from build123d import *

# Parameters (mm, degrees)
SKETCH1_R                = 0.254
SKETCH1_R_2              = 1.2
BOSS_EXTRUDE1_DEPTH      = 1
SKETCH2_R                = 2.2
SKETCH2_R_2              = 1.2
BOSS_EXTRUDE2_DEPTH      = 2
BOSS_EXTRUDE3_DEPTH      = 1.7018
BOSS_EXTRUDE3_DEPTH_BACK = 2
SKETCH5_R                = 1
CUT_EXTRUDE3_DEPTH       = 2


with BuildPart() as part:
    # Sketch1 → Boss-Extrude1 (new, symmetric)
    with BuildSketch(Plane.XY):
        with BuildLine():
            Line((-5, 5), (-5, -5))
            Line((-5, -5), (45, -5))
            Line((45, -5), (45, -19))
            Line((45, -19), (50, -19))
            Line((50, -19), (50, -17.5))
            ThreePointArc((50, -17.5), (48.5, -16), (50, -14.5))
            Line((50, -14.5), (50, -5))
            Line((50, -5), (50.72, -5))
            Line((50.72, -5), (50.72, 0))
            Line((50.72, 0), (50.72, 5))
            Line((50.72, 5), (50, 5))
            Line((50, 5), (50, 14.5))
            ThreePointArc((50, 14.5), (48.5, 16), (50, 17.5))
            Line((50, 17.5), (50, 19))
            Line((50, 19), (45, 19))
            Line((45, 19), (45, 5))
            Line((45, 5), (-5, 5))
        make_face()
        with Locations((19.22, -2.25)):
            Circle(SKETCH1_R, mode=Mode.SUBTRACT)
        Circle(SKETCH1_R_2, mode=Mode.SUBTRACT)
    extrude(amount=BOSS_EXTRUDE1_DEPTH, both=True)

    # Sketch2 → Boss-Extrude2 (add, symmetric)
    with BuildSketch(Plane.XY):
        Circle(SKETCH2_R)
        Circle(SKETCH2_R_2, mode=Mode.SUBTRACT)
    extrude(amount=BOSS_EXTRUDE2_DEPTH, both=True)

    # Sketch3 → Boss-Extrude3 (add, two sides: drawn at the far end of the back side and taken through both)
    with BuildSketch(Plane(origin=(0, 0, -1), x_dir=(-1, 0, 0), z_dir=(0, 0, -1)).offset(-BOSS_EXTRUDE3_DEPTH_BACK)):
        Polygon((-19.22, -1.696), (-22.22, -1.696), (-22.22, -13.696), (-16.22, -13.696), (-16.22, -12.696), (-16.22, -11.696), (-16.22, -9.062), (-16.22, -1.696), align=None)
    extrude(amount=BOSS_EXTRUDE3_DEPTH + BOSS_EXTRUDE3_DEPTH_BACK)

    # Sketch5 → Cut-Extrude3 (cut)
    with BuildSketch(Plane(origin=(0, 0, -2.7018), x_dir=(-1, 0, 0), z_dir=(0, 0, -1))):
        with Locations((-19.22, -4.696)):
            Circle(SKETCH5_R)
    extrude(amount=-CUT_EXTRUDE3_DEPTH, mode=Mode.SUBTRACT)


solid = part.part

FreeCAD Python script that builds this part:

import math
import FreeCAD as App
import Part
import Sketcher
from FreeCAD import Vector


def add_polygon(sketch, points):
    """Adds a closed chain of lines whose ends are joined by coincident constraints."""
    first, n = sketch.GeometryCount, len(points)
    for a, b in zip(points, points[1:] + points[:1]):
        sketch.addGeometry(Part.LineSegment(App.Vector(*a, 0), App.Vector(*b, 0)), False)
    for i in range(n):
        sketch.addConstraint(Sketcher.Constraint("Coincident", first + i, 2, first + (i + 1) % n, 1))

doc = App.newDocument("Part")
params = doc.addObject("Spreadsheet::Sheet", "Params")
for row, (alias, value) in enumerate([
    ("sketch1_diameter", "2.4 mm"),
    ("sketch1_radius", "1.5 mm"),
    ("sketch1_width", "50 mm"),
    ("sketch1_width2", "5 mm"),
    ("sketch1_height", "10 mm"),
    ("pad1_length", "2 mm"),
    ("sketch2_diameter", "4.4 mm"),
    ("sketch2_diameter2", "2.4 mm"),
    ("pad2_length", "4 mm"),
    ("sketch3_width", "6 mm"),
    ("sketch3_height", "12 mm"),
    ("pad3_length", "1.7018 mm"),
    ("pad3_length2", "2 mm"),
    ("sketch4_diameter", "2 mm"),
    ("pocket1_length", "2 mm"),
], start=1):
    params.set(f"A{row}", alias)
    params.set(f"B{row}", "=" + value)
    params.setAlias(f"B{row}", alias)

body = doc.addObject("PartDesign::Body", "Body")

# Sketch on XY plane
sketch1 = doc.addObject("Sketcher::SketchObject", "Sketch")
body.addObject(sketch1)
sketch1.AttachmentSupport = (doc.XY_Plane, [""])
sketch1.MapMode = "FlatFace"
sketch1.addGeometry(Part.LineSegment(Vector(-5, 5, 0), Vector(-5, -5, 0)), False)
sketch1.addGeometry(Part.LineSegment(Vector(-5, -5, 0), Vector(45, -5, 0)), False)
sketch1.addGeometry(Part.LineSegment(Vector(45, -5, 0), Vector(45, -19, 0)), False)
sketch1.addGeometry(Part.LineSegment(Vector(45, -19, 0), Vector(50, -19, 0)), False)
sketch1.addGeometry(Part.LineSegment(Vector(50, -19, 0), Vector(50, -17.5, 0)), False)
sketch1.addGeometry(Part.ArcOfCircle(Part.Circle(Vector(50, -16, 0), Vector(0, 0, 1), 1.5), math.radians(90), math.radians(270)), False)
sketch1.addGeometry(Part.LineSegment(Vector(50, -14.5, 0), Vector(50, -5, 0)), False)
sketch1.addGeometry(Part.LineSegment(Vector(50, -5, 0), Vector(50.72, -5, 0)), False)
sketch1.addGeometry(Part.LineSegment(Vector(50.72, -5, 0), Vector(50.72, 5, 0)), False)
sketch1.addGeometry(Part.LineSegment(Vector(50.72, 5, 0), Vector(50, 5, 0)), False)
sketch1.addGeometry(Part.LineSegment(Vector(50, 5, 0), Vector(50, 14.5, 0)), False)
sketch1.addGeometry(Part.ArcOfCircle(Part.Circle(Vector(50, 16, 0), Vector(0, 0, 1), 1.5), math.radians(90), math.radians(270)), False)
sketch1.addGeometry(Part.LineSegment(Vector(50, 17.5, 0), Vector(50, 19, 0)), False)
sketch1.addGeometry(Part.LineSegment(Vector(50, 19, 0), Vector(45, 19, 0)), False)
sketch1.addGeometry(Part.LineSegment(Vector(45, 19, 0), Vector(45, 5, 0)), False)
sketch1.addGeometry(Part.LineSegment(Vector(45, 5, 0), Vector(-5, 5, 0)), False)
sketch1.addGeometry(Part.Circle(Vector(19.22, -2.25, 0), Vector(0, 0, 1), 0.254), False)
sketch1.addGeometry(Part.Circle(Vector(0, 0, 0), Vector(0, 0, 1), 1.2), False)
sketch1.addConstraint(Sketcher.Constraint("Coincident", 0, 2, 1, 1))
sketch1.addConstraint(Sketcher.Constraint("Coincident", 1, 2, 2, 1))
sketch1.addConstraint(Sketcher.Constraint("Coincident", 2, 2, 3, 1))
sketch1.addConstraint(Sketcher.Constraint("Coincident", 3, 2, 4, 1))
sketch1.addConstraint(Sketcher.Constraint("Coincident", 4, 2, 5, 2))
sketch1.addConstraint(Sketcher.Constraint("Coincident", 5, 1, 6, 1))
sketch1.addConstraint(Sketcher.Constraint("Coincident", 6, 2, 7, 1))
sketch1.addConstraint(Sketcher.Constraint("Coincident", 7, 2, 8, 1))
sketch1.addConstraint(Sketcher.Constraint("Coincident", 8, 2, 9, 1))
sketch1.addConstraint(Sketcher.Constraint("Coincident", 9, 2, 10, 1))
sketch1.addConstraint(Sketcher.Constraint("Coincident", 10, 2, 11, 2))
sketch1.addConstraint(Sketcher.Constraint("Coincident", 11, 1, 12, 1))
sketch1.addConstraint(Sketcher.Constraint("Coincident", 12, 2, 13, 1))
sketch1.addConstraint(Sketcher.Constraint("Coincident", 13, 2, 14, 1))
sketch1.addConstraint(Sketcher.Constraint("Coincident", 14, 2, 15, 1))
sketch1.addConstraint(Sketcher.Constraint("Coincident", 15, 2, 0, 1))
sketch1.addConstraint(Sketcher.Constraint("Vertical", 0))
sketch1.addConstraint(Sketcher.Constraint("Horizontal", 1))
sketch1.addConstraint(Sketcher.Constraint("Vertical", 2))
sketch1.addConstraint(Sketcher.Constraint("Horizontal", 3))
sketch1.addConstraint(Sketcher.Constraint("Vertical", 4))
sketch1.addConstraint(Sketcher.Constraint("Vertical", 6))
sketch1.addConstraint(Sketcher.Constraint("Horizontal", 7))
sketch1.addConstraint(Sketcher.Constraint("Vertical", 8))
sketch1.addConstraint(Sketcher.Constraint("Horizontal", 9))
sketch1.addConstraint(Sketcher.Constraint("Vertical", 10))
sketch1.addConstraint(Sketcher.Constraint("Vertical", 12))
sketch1.addConstraint(Sketcher.Constraint("Horizontal", 13))
sketch1.addConstraint(Sketcher.Constraint("Vertical", 14))
sketch1.addConstraint(Sketcher.Constraint("Horizontal", 15))
sketch1.addConstraint(Sketcher.Constraint("Coincident", 17, 3, -1, 1))
sketch1.addConstraint(Sketcher.Constraint("Equal", 5, 11))
sketch1.addConstraint(Sketcher.Constraint("Symmetric", 5, 3, 11, 3, -1))
sketch1.addConstraint(Sketcher.Constraint("Symmetric", 6, 2, 9, 2, -1))
sketch1.addConstraint(Sketcher.Constraint("Symmetric", 3, 2, 12, 2, -1))
sketch1.addConstraint(Sketcher.Constraint("Symmetric", 1, 2, 14, 2, -1))
sketch1.addConstraint(Sketcher.Constraint("Horizontal", 1, 2, 6, 2))
sketch1.addConstraint(Sketcher.Constraint("Vertical", 11, 3, 3, 2))
sketch1.addConstraint(Sketcher.Constraint("Vertical", 4, 2, 5, 1))
sketch1.addConstraint(Sketcher.Constraint("Diameter", 17, 2.4))
sketch1.addConstraint(Sketcher.Constraint("Radius", 5, 1.5))
sketch1.addConstraint(Sketcher.Constraint("DistanceX", 1, 1, 1, 2, 50.0))
sketch1.addConstraint(Sketcher.Constraint("DistanceX", 3, 1, 3, 2, 5.0))
sketch1.addConstraint(Sketcher.Constraint("DistanceY", 0, 2, 0, 1, 10.0))
sketch1.addConstraint(Sketcher.Constraint("DistanceY", 2, 2, 2, 1, 14.0))
sketch1.addConstraint(Sketcher.Constraint("Diameter", 16, 0.508))
sketch1.addConstraint(Sketcher.Constraint("DistanceY", 4, 1, 4, 2, 1.5))
sketch1.addConstraint(Sketcher.Constraint("DistanceX", -1, 1, 5, 3, 50.0))
sketch1.addConstraint(Sketcher.Constraint("DistanceX", 7, 1, 7, 2, 0.72))
sketch1.addConstraint(Sketcher.Constraint("DistanceX", -1, 1, 16, 3, 19.22))
sketch1.addConstraint(Sketcher.Constraint("DistanceY", 16, 3, -1, 1, 2.25))
sketch1.setExpression("Constraints[39]", "Params.sketch1_diameter")
sketch1.setExpression("Constraints[40]", "Params.sketch1_radius")
sketch1.setExpression("Constraints[41]", "Params.sketch1_width")
sketch1.setExpression("Constraints[42]", "Params.sketch1_width2")
sketch1.setExpression("Constraints[43]", "Params.sketch1_height")
pad1 = doc.addObject("PartDesign::Pad", "Pad")
body.addObject(pad1)
pad1.Profile = sketch1
pad1.setExpression("Length", "Params.pad1_length")
pad1.Midplane = True

# Sketch on XY plane
sketch2 = doc.addObject("Sketcher::SketchObject", "Sketch001")
body.addObject(sketch2)
sketch2.AttachmentSupport = (doc.XY_Plane, [""])
sketch2.MapMode = "FlatFace"
sketch2.addGeometry(Part.Circle(Vector(0, 0, 0), Vector(0, 0, 1), 2.2), False)
sketch2.addGeometry(Part.Circle(Vector(0, 0, 0), Vector(0, 0, 1), 1.2), False)
sketch2.addConstraint(Sketcher.Constraint("Coincident", 0, 3, -1, 1))
sketch2.addConstraint(Sketcher.Constraint("Coincident", 1, 3, -1, 1))
sketch2.addConstraint(Sketcher.Constraint("Diameter", 0, 4.4))
sketch2.addConstraint(Sketcher.Constraint("Diameter", 1, 2.4))
sketch2.setExpression("Constraints[2]", "Params.sketch2_diameter")
sketch2.setExpression("Constraints[3]", "Params.sketch2_diameter2")
pad2 = doc.addObject("PartDesign::Pad", "Pad001")
body.addObject(pad2)
pad2.Profile = sketch2
pad2.setExpression("Length", "Params.pad2_length")
pad2.Midplane = True

# Sketch on XY plane
sketch3 = doc.addObject("Sketcher::SketchObject", "Sketch002")
body.addObject(sketch3)
sketch3.AttachmentSupport = (doc.XY_Plane, [""])
sketch3.MapMode = "FlatFace"
sketch3.AttachmentOffset = App.Placement(Vector(0, 0, -1), App.Rotation())
add_polygon(sketch3, [(22.22, -1.696), (22.22, -13.696), (16.22, -13.696), (16.22, -1.696)])  # lines 0-3
sketch3.addConstraint(Sketcher.Constraint("Vertical", 0))
sketch3.addConstraint(Sketcher.Constraint("Horizontal", 1))
sketch3.addConstraint(Sketcher.Constraint("Vertical", 2))
sketch3.addConstraint(Sketcher.Constraint("Horizontal", 3))
sketch3.addConstraint(Sketcher.Constraint("DistanceX", 1, 2, 1, 1, 6.0))
sketch3.addConstraint(Sketcher.Constraint("DistanceY", 0, 2, 0, 1, 12.0))
sketch3.addConstraint(Sketcher.Constraint("DistanceX", -1, 1, 0, 2, 22.22))
sketch3.addConstraint(Sketcher.Constraint("DistanceY", 0, 2, -1, 1, 13.696))
sketch3.setExpression("Constraints[8]", "Params.sketch3_width")
sketch3.setExpression("Constraints[9]", "Params.sketch3_height")
pad3 = doc.addObject("PartDesign::Pad", "Pad002")
body.addObject(pad3)
pad3.Profile = sketch3
pad3.Type = "TwoLengths"
pad3.setExpression("Length", "Params.pad3_length")
pad3.setExpression("Length2", "Params.pad3_length2")
pad3.Reversed = True

# Sketch on XY plane
sketch4 = doc.addObject("Sketcher::SketchObject", "Sketch003")
body.addObject(sketch4)
sketch4.AttachmentSupport = (doc.XY_Plane, [""])
sketch4.MapMode = "FlatFace"
sketch4.AttachmentOffset = App.Placement(Vector(0, 0, -2.7018), App.Rotation())
sketch4.addGeometry(Part.Circle(Vector(19.22, -4.696, 0), Vector(0, 0, 1), 1), False)
sketch4.addConstraint(Sketcher.Constraint("Diameter", 0, 2.0))
sketch4.addConstraint(Sketcher.Constraint("DistanceX", -1, 1, 0, 3, 19.22))
sketch4.addConstraint(Sketcher.Constraint("DistanceY", 0, 3, -1, 1, 4.696))
sketch4.setExpression("Constraints[0]", "Params.sketch4_diameter")
pocket1 = doc.addObject("PartDesign::Pocket", "Pocket")
body.addObject(pocket1)
pocket1.Profile = sketch4
pocket1.setExpression("Length", "Params.pocket1_length")
pocket1.Reversed = True

doc.recompute()
